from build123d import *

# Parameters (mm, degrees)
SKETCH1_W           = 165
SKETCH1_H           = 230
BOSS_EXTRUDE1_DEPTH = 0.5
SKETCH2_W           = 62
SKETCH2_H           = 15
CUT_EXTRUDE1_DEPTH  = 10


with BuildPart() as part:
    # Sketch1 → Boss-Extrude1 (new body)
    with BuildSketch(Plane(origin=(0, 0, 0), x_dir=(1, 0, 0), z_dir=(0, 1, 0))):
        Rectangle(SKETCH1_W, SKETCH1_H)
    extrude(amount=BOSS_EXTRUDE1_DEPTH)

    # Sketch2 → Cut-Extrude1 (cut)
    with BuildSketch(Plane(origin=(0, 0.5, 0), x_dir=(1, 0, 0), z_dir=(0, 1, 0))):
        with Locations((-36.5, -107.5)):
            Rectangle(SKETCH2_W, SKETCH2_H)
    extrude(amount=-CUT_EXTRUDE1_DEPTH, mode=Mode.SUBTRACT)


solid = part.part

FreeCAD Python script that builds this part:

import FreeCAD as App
import Part
import Sketcher
Q = App.Units.Quantity


def add_polygon(sketch, points):
    """Adds a closed chain of lines whose ends are joined by coincident constraints."""
    first, n = sketch.GeometryCount, len(points)
    for a, b in zip(points, points[1:] + points[:1]):
        sketch.addGeometry(Part.LineSegment(App.Vector(*a, 0), App.Vector(*b, 0)), False)
    for i in range(n):
        sketch.addConstraint(Sketcher.Constraint("Coincident", first + i, 2, first + (i + 1) % n, 1))

doc = App.newDocument("Part")
body = doc.addObject("PartDesign::Body", "Body")

sketch1 = body.newObject("Sketcher::SketchObject", "Sketch")
sketch1.AttachmentSupport = (doc.getObject("XZ_Plane"), [""])
sketch1.MapMode = "FlatFace"
add_polygon(sketch1, [(-82, -115), (-82, 115), (82, 115), (82, -115)])
sketch1.addConstraint([
    Sketcher.Constraint("Vertical", 0),
    Sketcher.Constraint("Horizontal", 1),
    Sketcher.Constraint("Vertical", 2),
    Sketcher.Constraint("Horizontal", 3),
    Sketcher.Constraint("Symmetric", 0, 2, 2, 2, -1, 1),
    Sketcher.Constraint("DistanceX", 1, 1, 1, 2, Q("165 mm")),
    Sketcher.Constraint("DistanceY", 0, 1, 0, 2, Q("230 mm")),
])
pad1 = body.newObject("PartDesign::Pad", "Pad")
pad1.Profile = sketch1
pad1.Length = 0.5
pad1.Reversed = True

sketch2 = body.newObject("Sketcher::SketchObject", "Sketch001")
sketch2.AttachmentSupport = (doc.getObject("XZ_Plane"), [""])
sketch2.MapMode = "FlatFace"
sketch2.AttachmentOffset = App.Placement(App.Vector(0, 0, -0.5), App.Rotation())
add_polygon(sketch2, [(-68, 100), (-68, 115), (-6, 115), (-6, 100)])
sketch2.addConstraint([
    Sketcher.Constraint("Vertical", 0),
    Sketcher.Constraint("Horizontal", 1),
    Sketcher.Constraint("Vertical", 2),
    Sketcher.Constraint("Horizontal", 3),
    Sketcher.Constraint("DistanceX", 1, 1, 1, 2, Q("62 mm")),
    Sketcher.Constraint("DistanceY", 0, 1, 0, 2, Q("15 mm")),
    Sketcher.Constraint("DistanceY", -1, 1, 0, 2, Q("115 mm")),
    Sketcher.Constraint("DistanceX", 0, 2, -1, 1, Q("67.5 mm")),
])
pocket1 = body.newObject("PartDesign::Pocket", "Pocket")
pocket1.Profile = sketch2
pocket1.Length = 10
pocket1.Reversed = True

doc.recompute()
